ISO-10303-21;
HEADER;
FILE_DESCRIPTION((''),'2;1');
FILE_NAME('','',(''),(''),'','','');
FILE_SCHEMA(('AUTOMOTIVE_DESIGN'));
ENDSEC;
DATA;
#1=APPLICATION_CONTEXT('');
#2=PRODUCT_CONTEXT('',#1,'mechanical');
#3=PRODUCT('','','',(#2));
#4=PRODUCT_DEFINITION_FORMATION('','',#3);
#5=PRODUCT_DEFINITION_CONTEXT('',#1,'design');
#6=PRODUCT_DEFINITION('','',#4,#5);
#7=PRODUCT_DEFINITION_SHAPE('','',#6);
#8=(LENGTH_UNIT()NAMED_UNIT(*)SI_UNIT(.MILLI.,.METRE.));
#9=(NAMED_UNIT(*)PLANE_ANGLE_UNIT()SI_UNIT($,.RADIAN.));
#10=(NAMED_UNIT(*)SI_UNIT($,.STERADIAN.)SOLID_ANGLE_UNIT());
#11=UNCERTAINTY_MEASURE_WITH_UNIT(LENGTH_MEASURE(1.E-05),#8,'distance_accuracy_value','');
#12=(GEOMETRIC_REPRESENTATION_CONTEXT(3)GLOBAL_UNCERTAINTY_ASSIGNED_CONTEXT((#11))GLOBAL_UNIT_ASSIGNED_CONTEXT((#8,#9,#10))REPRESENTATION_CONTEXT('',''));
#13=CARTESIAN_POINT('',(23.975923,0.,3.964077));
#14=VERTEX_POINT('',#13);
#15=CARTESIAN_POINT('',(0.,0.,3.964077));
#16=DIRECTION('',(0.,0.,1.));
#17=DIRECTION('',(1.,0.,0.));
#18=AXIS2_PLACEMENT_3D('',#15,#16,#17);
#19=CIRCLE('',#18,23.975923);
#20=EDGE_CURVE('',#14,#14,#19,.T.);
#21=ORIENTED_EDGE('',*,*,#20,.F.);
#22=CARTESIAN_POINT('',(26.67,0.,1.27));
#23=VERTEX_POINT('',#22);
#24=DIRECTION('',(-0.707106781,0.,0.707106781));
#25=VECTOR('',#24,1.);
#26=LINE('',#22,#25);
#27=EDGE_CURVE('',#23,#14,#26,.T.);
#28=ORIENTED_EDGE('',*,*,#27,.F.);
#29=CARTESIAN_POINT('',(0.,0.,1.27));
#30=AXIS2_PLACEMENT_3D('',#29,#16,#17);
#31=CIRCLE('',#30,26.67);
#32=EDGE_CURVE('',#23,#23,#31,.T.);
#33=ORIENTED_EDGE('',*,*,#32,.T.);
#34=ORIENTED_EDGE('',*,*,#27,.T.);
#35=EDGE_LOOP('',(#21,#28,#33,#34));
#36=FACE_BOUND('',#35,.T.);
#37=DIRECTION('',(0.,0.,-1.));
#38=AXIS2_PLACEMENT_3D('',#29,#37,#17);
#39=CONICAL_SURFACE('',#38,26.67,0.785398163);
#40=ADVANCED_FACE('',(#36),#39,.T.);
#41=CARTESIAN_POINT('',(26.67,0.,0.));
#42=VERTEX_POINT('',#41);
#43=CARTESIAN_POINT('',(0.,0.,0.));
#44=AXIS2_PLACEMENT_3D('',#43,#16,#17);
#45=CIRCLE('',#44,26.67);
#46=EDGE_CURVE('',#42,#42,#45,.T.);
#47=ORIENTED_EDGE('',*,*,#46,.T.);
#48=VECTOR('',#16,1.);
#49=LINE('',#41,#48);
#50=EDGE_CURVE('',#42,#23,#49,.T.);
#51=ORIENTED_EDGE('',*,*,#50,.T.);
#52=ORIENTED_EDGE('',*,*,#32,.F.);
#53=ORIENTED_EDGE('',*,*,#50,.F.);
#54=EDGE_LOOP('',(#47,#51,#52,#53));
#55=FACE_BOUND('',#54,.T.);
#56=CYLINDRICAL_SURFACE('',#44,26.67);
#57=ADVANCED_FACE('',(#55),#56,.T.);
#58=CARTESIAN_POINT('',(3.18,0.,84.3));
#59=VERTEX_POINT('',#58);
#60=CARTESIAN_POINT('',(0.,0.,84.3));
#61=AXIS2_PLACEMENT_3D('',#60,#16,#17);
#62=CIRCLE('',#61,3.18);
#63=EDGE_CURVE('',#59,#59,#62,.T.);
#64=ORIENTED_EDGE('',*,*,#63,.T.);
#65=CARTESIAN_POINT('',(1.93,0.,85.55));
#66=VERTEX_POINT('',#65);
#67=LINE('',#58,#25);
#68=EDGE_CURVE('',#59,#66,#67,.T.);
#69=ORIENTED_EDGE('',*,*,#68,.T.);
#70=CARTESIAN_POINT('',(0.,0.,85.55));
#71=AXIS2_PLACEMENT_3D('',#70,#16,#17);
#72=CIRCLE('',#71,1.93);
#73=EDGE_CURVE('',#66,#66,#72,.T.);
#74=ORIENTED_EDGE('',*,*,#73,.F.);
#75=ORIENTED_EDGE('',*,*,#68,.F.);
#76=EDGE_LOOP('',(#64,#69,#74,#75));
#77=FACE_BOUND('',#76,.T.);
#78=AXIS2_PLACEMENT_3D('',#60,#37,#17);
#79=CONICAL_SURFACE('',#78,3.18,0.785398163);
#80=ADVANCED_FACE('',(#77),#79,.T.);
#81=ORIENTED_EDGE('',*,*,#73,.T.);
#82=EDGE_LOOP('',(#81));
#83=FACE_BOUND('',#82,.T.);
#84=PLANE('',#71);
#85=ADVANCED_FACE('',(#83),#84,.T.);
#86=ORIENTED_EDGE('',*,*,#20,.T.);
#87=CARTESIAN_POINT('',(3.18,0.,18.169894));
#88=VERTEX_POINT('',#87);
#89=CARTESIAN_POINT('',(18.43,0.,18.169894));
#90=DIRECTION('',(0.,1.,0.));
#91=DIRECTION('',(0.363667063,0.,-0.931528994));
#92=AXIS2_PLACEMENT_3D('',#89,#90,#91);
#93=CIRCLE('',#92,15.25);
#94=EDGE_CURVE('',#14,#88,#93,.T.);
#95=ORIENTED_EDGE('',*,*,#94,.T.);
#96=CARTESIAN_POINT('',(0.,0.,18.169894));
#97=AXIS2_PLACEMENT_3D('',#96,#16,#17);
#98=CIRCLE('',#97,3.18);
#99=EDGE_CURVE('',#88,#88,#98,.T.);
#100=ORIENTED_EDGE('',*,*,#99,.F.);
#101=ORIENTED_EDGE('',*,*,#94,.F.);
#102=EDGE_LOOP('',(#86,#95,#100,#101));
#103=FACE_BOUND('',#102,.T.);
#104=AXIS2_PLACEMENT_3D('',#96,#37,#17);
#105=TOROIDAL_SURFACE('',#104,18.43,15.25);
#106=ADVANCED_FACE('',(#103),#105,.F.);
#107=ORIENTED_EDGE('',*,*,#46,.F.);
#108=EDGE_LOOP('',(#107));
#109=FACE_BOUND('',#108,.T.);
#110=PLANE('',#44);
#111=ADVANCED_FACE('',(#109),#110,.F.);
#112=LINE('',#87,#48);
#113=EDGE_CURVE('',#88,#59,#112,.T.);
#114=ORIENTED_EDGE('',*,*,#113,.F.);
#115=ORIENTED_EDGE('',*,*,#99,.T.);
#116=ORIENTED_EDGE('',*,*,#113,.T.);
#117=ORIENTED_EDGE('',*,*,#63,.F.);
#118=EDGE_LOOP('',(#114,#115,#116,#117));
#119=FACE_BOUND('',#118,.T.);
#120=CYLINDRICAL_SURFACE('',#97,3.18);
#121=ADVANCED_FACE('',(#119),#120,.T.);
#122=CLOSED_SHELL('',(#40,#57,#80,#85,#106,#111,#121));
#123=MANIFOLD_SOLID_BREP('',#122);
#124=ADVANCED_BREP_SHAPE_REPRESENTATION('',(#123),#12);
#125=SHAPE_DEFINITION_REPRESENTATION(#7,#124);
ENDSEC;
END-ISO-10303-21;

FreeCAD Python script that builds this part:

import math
import FreeCAD as App
import Part
import Sketcher
from FreeCAD import Vector
Q = App.Units.Quantity


def edges_at(feature, points):
    """Names of the edges that pass closest to the given points."""
    edges = feature.Shape.Edges
    near = lambda p: min(range(len(edges)), key=lambda i: edges[i].distToShape(Part.Vertex(*p))[0])
    return sorted({f"Edge{near(p) + 1}" for p in points})

doc = App.newDocument("Part")
body = doc.addObject("PartDesign::Body", "Body")

# Sketch on XZ plane
sketch1 = body.newObject("Sketcher::SketchObject", "Sketch")
sketch1.AttachmentSupport = (doc.getObject("XZ_Plane"), [""])
sketch1.MapMode = "FlatFace"
sketch1.addGeometry([
    Part.LineSegment(Vector(0, 85.5, 0), Vector(0, 0, 0)),  # 0
    Part.LineSegment(Vector(0, 0, 0), Vector(26.7, 0, 0)),  # 1
    Part.LineSegment(Vector(26.7, 0, 0), Vector(26.7, 1.3, 0)),  # 2
    Part.LineSegment(Vector(26.7, 1.3, 0), Vector(24, 4, 0)),  # 3
    Part.ArcOfCircle(Part.Circle(Vector(18.4, 18.2, 0), Vector(0, 0, 1), 15.3), math.radians(-180), math.radians(-69)),  # 4
    Part.LineSegment(Vector(3.2, 18.2, 0), Vector(3.2, 85.5, 0)),  # 5
    Part.LineSegment(Vector(3.2, 85.5, 0), Vector(0, 85.5, 0)),  # 6
], False)
sketch1.addConstraint([
    Sketcher.Constraint("Coincident", 0, 2, 1, 1),
    Sketcher.Constraint("Coincident", 1, 2, 2, 1),
    Sketcher.Constraint("Coincident", 2, 2, 3, 1),
    Sketcher.Constraint("Coincident", 3, 2, 4, 2),
    Sketcher.Constraint("Tangent", 4, 1, 5, 1),
    Sketcher.Constraint("Coincident", 5, 2, 6, 1),
    Sketcher.Constraint("Coincident", 6, 2, 0, 1),
    Sketcher.Constraint("Vertical", 0),
    Sketcher.Constraint("Horizontal", 1),
    Sketcher.Constraint("Vertical", 2),
    Sketcher.Constraint("Vertical", 5),
    Sketcher.Constraint("Horizontal", 6),
    Sketcher.Constraint("Coincident", 0, 2, -1, 1),
    Sketcher.Constraint("Angle", 3, Q("135 deg")),
    Sketcher.Constraint("DistanceX", 1, 1, 1, 2, Q("1.05 in")),
    Sketcher.Constraint("DistanceY", 2, 1, 2, 2, Q("0.05 in")),
    Sketcher.Constraint("Distance", 3, Q("0.15 in")),
    Sketcher.Constraint("Radius", 4, 15.25),
    Sketcher.Constraint("DistanceX", 6, 2, 6, 1, 3.18),
    Sketcher.Constraint("DistanceY", 0, 2, 0, 1, 85.55),
])
revolution = body.newObject("PartDesign::Revolution", "Revolution")
revolution.Profile = sketch1
revolution.ReferenceAxis = (sketch1, ["V_Axis"])
revolution.Angle = 360
doc.recompute()

chamfer = body.newObject("PartDesign::Chamfer", "Chamfer")
chamfer.Base = (revolution, edges_at(revolution, [(-3.18, 0, 85.55)]))
chamfer.Size = 1.25

doc.recompute()
